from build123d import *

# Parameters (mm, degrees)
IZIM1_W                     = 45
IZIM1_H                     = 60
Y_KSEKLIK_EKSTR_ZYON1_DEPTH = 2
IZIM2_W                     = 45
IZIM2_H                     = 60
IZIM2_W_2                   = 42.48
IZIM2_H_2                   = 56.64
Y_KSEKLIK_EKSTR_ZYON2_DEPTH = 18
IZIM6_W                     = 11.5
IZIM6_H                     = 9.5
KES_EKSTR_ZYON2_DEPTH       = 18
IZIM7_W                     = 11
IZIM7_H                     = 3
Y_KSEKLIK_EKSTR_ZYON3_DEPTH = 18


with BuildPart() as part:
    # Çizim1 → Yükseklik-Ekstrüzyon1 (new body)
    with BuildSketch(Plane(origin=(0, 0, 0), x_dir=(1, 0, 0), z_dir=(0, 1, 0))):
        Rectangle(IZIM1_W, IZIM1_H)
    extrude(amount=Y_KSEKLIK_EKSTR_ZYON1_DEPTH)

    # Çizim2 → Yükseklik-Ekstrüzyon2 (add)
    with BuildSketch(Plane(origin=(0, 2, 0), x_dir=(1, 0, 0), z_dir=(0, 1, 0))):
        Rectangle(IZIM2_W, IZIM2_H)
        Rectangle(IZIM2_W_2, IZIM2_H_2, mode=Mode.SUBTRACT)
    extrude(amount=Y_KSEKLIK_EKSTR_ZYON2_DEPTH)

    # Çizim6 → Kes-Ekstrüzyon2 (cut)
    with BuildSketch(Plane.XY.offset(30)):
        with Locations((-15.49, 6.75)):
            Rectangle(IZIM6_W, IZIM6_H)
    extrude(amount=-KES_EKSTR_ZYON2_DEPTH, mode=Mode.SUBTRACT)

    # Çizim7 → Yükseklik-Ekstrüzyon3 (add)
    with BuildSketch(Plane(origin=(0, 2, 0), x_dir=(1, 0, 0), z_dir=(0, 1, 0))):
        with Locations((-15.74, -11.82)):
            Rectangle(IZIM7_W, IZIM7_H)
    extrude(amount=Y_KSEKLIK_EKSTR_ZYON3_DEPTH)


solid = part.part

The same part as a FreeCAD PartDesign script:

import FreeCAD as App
import Part
import Sketcher
from FreeCAD import Vector
Q = App.Units.Quantity

doc = App.newDocument("Part")
body = doc.addObject("PartDesign::Body", "Body")

# Sketch on XZ plane
sketch1 = body.newObject("Sketcher::SketchObject", "Sketch")
sketch1.AttachmentSupport = (doc.getObject("XZ_Plane"), [""])
sketch1.MapMode = "FlatFace"
sketch1.addGeometry(Part.LineSegment(Vector(-22, -30, 0), Vector(-22, 30, 0)), False)
sketch1.addGeometry(Part.LineSegment(Vector(-22, 30, 0), Vector(22, 30, 0)), False)
sketch1.addGeometry(Part.LineSegment(Vector(22, 30, 0), Vector(22, -30, 0)), False)
sketch1.addGeometry(Part.LineSegment(Vector(22, -30, 0), Vector(-22, -30, 0)), False)
sketch1.addConstraint(Sketcher.Constraint("Coincident", 0, 2, 1, 1))
sketch1.addConstraint(Sketcher.Constraint("Coincident", 1, 2, 2, 1))
sketch1.addConstraint(Sketcher.Constraint("Coincident", 2, 2, 3, 1))
sketch1.addConstraint(Sketcher.Constraint("Coincident", 3, 2, 0, 1))
sketch1.addConstraint(Sketcher.Constraint("Vertical", 0))
sketch1.addConstraint(Sketcher.Constraint("Horizontal", 1))
sketch1.addConstraint(Sketcher.Constraint("Vertical", 2))
sketch1.addConstraint(Sketcher.Constraint("Horizontal", 3))
sketch1.addConstraint(Sketcher.Constraint("Symmetric", 0, 2, 2, 2, -1, 1))
sketch1.addConstraint(Sketcher.Constraint("DistanceX", 1, 1, 1, 2, Q("45 mm")))
sketch1.addConstraint(Sketcher.Constraint("DistanceY", 0, 1, 0, 2, Q("60 mm")))
pad1 = body.newObject("PartDesign::Pad", "Pad")
pad1.Profile = sketch1
pad1.Length = 2
pad1.Reversed = True

# Sketch on XZ plane
sketch2 = body.newObject("Sketcher::SketchObject", "Sketch001")
sketch2.AttachmentSupport = (doc.getObject("XZ_Plane"), [""])
sketch2.MapMode = "FlatFace"
sketch2.AttachmentOffset = App.Placement(Vector(0, 0, -2), App.Rotation())
sketch2.addGeometry(Part.LineSegment(Vector(-22, -30, 0), Vector(-22, 30, 0)), False)
sketch2.addGeometry(Part.LineSegment(Vector(-22, 30, 0), Vector(22, 30, 0)), False)
sketch2.addGeometry(Part.LineSegment(Vector(22, 30, 0), Vector(22, -30, 0)), False)
sketch2.addGeometry(Part.LineSegment(Vector(22, -30, 0), Vector(-22, -30, 0)), False)
sketch2.addGeometry(Part.LineSegment(Vector(21, 28, 0), Vector(-21, 28, 0)), False)
sketch2.addGeometry(Part.LineSegment(Vector(-21, 28, 0), Vector(-21, -28, 0)), False)
sketch2.addGeometry(Part.LineSegment(Vector(-21, -28, 0), Vector(21, -28, 0)), False)
sketch2.addGeometry(Part.LineSegment(Vector(21, -28, 0), Vector(21, 28, 0)), False)
sketch2.addConstraint(Sketcher.Constraint("Coincident", 0, 2, 1, 1))
sketch2.addConstraint(Sketcher.Constraint("Coincident", 1, 2, 2, 1))
sketch2.addConstraint(Sketcher.Constraint("Coincident", 2, 2, 3, 1))
sketch2.addConstraint(Sketcher.Constraint("Coincident", 3, 2, 0, 1))
sketch2.addConstraint(Sketcher.Constraint("Coincident", 4, 2, 5, 1))
sketch2.addConstraint(Sketcher.Constraint("Coincident", 5, 2, 6, 1))
sketch2.addConstraint(Sketcher.Constraint("Coincident", 6, 2, 7, 1))
sketch2.addConstraint(Sketcher.Constraint("Coincident", 7, 2, 4, 1))
sketch2.addConstraint(Sketcher.Constraint("Vertical", 0))
sketch2.addConstraint(Sketcher.Constraint("Horizontal", 1))
sketch2.addConstraint(Sketcher.Constraint("Vertical", 2))
sketch2.addConstraint(Sketcher.Constraint("Horizontal", 3))
sketch2.addConstraint(Sketcher.Constraint("Horizontal", 4))
sketch2.addConstraint(Sketcher.Constraint("Vertical", 5))
sketch2.addConstraint(Sketcher.Constraint("Horizontal", 6))
sketch2.addConstraint(Sketcher.Constraint("Vertical", 7))
sketch2.addConstraint(Sketcher.Constraint("Symmetric", 0, 2, 2, 2, -1, 1))
sketch2.addConstraint(Sketcher.Constraint("Symmetric", 4, 2, 6, 2, -1, 1))
sketch2.addConstraint(Sketcher.Constraint("DistanceX", 1, 1, 1, 2, Q("45 mm")))
sketch2.addConstraint(Sketcher.Constraint("DistanceY", 0, 1, 0, 2, Q("60 mm")))
sketch2.addConstraint(Sketcher.Constraint("DistanceX", 4, 2, 4, 1, Q("42.48 mm")))
sketch2.addConstraint(Sketcher.Constraint("DistanceY", 5, 2, 5, 1, Q("56.64 mm")))
pad2 = body.newObject("PartDesign::Pad", "Pad001")
pad2.Profile = sketch2
pad2.Length = 18
pad2.Reversed = True

# Sketch on XY plane
sketch3 = body.newObject("Sketcher::SketchObject", "Sketch002")
sketch3.AttachmentSupport = (doc.getObject("XY_Plane"), [""])
sketch3.MapMode = "FlatFace"
sketch3.AttachmentOffset = App.Placement(Vector(0, 0, 30), App.Rotation())
sketch3.addGeometry(Part.LineSegment(Vector(-21, 12, 0), Vector(-21, 2, 0)), False)
sketch3.addGeometry(Part.LineSegment(Vector(-21, 2, 0), Vector(-10, 2, 0)), False)
sketch3.addGeometry(Part.LineSegment(Vector(-10, 2, 0), Vector(-10, 12, 0)), False)
sketch3.addGeometry(Part.LineSegment(Vector(-10, 12, 0), Vector(-21, 12, 0)), False)
sketch3.addConstraint(Sketcher.Constraint("Coincident", 0, 2, 1, 1))
sketch3.addConstraint(Sketcher.Constraint("Coincident", 1, 2, 2, 1))
sketch3.addConstraint(Sketcher.Constraint("Coincident", 2, 2, 3, 1))
sketch3.addConstraint(Sketcher.Constraint("Coincident", 3, 2, 0, 1))
sketch3.addConstraint(Sketcher.Constraint("Vertical", 0))
sketch3.addConstraint(Sketcher.Constraint("Horizontal", 1))
sketch3.addConstraint(Sketcher.Constraint("Vertical", 2))
sketch3.addConstraint(Sketcher.Constraint("Horizontal", 3))
sketch3.addConstraint(Sketcher.Constraint("DistanceX", 1, 1, 1, 2, Q("11.5 mm")))
sketch3.addConstraint(Sketcher.Constraint("DistanceY", 0, 2, 0, 1, Q("9.5 mm")))
sketch3.addConstraint(Sketcher.Constraint("DistanceY", -1, 1, 0, 2, Q("2 mm")))
sketch3.addConstraint(Sketcher.Constraint("DistanceX", 0, 2, -1, 1, Q("21.24 mm")))
pocket1 = body.newObject("PartDesign::Pocket", "Pocket")
pocket1.Profile = sketch3
pocket1.Length = 18

# Sketch on XZ plane
sketch4 = body.newObject("Sketcher::SketchObject", "Sketch003")
sketch4.AttachmentSupport = (doc.getObject("XZ_Plane"), [""])
sketch4.MapMode = "FlatFace"
sketch4.AttachmentOffset = App.Placement(Vector(0, 0, -2), App.Rotation())
sketch4.addGeometry(Part.LineSegment(Vector(-21.2, 10.3, 0), Vector(-21.2, 13.3, 0)), False)
sketch4.addGeometry(Part.LineSegment(Vector(-21.2, 13.3, 0), Vector(-10.2, 13.3, 0)), False)
sketch4.addGeometry(Part.LineSegment(Vector(-10.2, 13.3, 0), Vector(-10.2, 10.3, 0)), False)
sketch4.addGeometry(Part.LineSegment(Vector(-10.2, 10.3, 0), Vector(-21.2, 10.3, 0)), False)
sketch4.addConstraint(Sketcher.Constraint("Coincident", 0, 2, 1, 1))
sketch4.addConstraint(Sketcher.Constraint("Coincident", 1, 2, 2, 1))
sketch4.addConstraint(Sketcher.Constraint("Coincident", 2, 2, 3, 1))
sketch4.addConstraint(Sketcher.Constraint("Coincident", 3, 2, 0, 1))
sketch4.addConstraint(Sketcher.Constraint("Vertical", 0))
sketch4.addConstraint(Sketcher.Constraint("Horizontal", 1))
sketch4.addConstraint(Sketcher.Constraint("Vertical", 2))
sketch4.addConstraint(Sketcher.Constraint("Horizontal", 3))
sketch4.addConstraint(Sketcher.Constraint("DistanceX", 1, 1, 1, 2, Q("11 mm")))
sketch4.addConstraint(Sketcher.Constraint("DistanceY", 0, 1, 0, 2, Q("3 mm")))
sketch4.addConstraint(Sketcher.Constraint("DistanceX", 0, 2, -1, 1, Q("21.24 mm")))
sketch4.addConstraint(Sketcher.Constraint("DistanceY", -1, 1, 0, 2, Q("13.32 mm")))
pad3 = body.newObject("PartDesign::Pad", "Pad002")
pad3.Profile = sketch4
pad3.Length = 18
pad3.Reversed = True

doc.recompute()
